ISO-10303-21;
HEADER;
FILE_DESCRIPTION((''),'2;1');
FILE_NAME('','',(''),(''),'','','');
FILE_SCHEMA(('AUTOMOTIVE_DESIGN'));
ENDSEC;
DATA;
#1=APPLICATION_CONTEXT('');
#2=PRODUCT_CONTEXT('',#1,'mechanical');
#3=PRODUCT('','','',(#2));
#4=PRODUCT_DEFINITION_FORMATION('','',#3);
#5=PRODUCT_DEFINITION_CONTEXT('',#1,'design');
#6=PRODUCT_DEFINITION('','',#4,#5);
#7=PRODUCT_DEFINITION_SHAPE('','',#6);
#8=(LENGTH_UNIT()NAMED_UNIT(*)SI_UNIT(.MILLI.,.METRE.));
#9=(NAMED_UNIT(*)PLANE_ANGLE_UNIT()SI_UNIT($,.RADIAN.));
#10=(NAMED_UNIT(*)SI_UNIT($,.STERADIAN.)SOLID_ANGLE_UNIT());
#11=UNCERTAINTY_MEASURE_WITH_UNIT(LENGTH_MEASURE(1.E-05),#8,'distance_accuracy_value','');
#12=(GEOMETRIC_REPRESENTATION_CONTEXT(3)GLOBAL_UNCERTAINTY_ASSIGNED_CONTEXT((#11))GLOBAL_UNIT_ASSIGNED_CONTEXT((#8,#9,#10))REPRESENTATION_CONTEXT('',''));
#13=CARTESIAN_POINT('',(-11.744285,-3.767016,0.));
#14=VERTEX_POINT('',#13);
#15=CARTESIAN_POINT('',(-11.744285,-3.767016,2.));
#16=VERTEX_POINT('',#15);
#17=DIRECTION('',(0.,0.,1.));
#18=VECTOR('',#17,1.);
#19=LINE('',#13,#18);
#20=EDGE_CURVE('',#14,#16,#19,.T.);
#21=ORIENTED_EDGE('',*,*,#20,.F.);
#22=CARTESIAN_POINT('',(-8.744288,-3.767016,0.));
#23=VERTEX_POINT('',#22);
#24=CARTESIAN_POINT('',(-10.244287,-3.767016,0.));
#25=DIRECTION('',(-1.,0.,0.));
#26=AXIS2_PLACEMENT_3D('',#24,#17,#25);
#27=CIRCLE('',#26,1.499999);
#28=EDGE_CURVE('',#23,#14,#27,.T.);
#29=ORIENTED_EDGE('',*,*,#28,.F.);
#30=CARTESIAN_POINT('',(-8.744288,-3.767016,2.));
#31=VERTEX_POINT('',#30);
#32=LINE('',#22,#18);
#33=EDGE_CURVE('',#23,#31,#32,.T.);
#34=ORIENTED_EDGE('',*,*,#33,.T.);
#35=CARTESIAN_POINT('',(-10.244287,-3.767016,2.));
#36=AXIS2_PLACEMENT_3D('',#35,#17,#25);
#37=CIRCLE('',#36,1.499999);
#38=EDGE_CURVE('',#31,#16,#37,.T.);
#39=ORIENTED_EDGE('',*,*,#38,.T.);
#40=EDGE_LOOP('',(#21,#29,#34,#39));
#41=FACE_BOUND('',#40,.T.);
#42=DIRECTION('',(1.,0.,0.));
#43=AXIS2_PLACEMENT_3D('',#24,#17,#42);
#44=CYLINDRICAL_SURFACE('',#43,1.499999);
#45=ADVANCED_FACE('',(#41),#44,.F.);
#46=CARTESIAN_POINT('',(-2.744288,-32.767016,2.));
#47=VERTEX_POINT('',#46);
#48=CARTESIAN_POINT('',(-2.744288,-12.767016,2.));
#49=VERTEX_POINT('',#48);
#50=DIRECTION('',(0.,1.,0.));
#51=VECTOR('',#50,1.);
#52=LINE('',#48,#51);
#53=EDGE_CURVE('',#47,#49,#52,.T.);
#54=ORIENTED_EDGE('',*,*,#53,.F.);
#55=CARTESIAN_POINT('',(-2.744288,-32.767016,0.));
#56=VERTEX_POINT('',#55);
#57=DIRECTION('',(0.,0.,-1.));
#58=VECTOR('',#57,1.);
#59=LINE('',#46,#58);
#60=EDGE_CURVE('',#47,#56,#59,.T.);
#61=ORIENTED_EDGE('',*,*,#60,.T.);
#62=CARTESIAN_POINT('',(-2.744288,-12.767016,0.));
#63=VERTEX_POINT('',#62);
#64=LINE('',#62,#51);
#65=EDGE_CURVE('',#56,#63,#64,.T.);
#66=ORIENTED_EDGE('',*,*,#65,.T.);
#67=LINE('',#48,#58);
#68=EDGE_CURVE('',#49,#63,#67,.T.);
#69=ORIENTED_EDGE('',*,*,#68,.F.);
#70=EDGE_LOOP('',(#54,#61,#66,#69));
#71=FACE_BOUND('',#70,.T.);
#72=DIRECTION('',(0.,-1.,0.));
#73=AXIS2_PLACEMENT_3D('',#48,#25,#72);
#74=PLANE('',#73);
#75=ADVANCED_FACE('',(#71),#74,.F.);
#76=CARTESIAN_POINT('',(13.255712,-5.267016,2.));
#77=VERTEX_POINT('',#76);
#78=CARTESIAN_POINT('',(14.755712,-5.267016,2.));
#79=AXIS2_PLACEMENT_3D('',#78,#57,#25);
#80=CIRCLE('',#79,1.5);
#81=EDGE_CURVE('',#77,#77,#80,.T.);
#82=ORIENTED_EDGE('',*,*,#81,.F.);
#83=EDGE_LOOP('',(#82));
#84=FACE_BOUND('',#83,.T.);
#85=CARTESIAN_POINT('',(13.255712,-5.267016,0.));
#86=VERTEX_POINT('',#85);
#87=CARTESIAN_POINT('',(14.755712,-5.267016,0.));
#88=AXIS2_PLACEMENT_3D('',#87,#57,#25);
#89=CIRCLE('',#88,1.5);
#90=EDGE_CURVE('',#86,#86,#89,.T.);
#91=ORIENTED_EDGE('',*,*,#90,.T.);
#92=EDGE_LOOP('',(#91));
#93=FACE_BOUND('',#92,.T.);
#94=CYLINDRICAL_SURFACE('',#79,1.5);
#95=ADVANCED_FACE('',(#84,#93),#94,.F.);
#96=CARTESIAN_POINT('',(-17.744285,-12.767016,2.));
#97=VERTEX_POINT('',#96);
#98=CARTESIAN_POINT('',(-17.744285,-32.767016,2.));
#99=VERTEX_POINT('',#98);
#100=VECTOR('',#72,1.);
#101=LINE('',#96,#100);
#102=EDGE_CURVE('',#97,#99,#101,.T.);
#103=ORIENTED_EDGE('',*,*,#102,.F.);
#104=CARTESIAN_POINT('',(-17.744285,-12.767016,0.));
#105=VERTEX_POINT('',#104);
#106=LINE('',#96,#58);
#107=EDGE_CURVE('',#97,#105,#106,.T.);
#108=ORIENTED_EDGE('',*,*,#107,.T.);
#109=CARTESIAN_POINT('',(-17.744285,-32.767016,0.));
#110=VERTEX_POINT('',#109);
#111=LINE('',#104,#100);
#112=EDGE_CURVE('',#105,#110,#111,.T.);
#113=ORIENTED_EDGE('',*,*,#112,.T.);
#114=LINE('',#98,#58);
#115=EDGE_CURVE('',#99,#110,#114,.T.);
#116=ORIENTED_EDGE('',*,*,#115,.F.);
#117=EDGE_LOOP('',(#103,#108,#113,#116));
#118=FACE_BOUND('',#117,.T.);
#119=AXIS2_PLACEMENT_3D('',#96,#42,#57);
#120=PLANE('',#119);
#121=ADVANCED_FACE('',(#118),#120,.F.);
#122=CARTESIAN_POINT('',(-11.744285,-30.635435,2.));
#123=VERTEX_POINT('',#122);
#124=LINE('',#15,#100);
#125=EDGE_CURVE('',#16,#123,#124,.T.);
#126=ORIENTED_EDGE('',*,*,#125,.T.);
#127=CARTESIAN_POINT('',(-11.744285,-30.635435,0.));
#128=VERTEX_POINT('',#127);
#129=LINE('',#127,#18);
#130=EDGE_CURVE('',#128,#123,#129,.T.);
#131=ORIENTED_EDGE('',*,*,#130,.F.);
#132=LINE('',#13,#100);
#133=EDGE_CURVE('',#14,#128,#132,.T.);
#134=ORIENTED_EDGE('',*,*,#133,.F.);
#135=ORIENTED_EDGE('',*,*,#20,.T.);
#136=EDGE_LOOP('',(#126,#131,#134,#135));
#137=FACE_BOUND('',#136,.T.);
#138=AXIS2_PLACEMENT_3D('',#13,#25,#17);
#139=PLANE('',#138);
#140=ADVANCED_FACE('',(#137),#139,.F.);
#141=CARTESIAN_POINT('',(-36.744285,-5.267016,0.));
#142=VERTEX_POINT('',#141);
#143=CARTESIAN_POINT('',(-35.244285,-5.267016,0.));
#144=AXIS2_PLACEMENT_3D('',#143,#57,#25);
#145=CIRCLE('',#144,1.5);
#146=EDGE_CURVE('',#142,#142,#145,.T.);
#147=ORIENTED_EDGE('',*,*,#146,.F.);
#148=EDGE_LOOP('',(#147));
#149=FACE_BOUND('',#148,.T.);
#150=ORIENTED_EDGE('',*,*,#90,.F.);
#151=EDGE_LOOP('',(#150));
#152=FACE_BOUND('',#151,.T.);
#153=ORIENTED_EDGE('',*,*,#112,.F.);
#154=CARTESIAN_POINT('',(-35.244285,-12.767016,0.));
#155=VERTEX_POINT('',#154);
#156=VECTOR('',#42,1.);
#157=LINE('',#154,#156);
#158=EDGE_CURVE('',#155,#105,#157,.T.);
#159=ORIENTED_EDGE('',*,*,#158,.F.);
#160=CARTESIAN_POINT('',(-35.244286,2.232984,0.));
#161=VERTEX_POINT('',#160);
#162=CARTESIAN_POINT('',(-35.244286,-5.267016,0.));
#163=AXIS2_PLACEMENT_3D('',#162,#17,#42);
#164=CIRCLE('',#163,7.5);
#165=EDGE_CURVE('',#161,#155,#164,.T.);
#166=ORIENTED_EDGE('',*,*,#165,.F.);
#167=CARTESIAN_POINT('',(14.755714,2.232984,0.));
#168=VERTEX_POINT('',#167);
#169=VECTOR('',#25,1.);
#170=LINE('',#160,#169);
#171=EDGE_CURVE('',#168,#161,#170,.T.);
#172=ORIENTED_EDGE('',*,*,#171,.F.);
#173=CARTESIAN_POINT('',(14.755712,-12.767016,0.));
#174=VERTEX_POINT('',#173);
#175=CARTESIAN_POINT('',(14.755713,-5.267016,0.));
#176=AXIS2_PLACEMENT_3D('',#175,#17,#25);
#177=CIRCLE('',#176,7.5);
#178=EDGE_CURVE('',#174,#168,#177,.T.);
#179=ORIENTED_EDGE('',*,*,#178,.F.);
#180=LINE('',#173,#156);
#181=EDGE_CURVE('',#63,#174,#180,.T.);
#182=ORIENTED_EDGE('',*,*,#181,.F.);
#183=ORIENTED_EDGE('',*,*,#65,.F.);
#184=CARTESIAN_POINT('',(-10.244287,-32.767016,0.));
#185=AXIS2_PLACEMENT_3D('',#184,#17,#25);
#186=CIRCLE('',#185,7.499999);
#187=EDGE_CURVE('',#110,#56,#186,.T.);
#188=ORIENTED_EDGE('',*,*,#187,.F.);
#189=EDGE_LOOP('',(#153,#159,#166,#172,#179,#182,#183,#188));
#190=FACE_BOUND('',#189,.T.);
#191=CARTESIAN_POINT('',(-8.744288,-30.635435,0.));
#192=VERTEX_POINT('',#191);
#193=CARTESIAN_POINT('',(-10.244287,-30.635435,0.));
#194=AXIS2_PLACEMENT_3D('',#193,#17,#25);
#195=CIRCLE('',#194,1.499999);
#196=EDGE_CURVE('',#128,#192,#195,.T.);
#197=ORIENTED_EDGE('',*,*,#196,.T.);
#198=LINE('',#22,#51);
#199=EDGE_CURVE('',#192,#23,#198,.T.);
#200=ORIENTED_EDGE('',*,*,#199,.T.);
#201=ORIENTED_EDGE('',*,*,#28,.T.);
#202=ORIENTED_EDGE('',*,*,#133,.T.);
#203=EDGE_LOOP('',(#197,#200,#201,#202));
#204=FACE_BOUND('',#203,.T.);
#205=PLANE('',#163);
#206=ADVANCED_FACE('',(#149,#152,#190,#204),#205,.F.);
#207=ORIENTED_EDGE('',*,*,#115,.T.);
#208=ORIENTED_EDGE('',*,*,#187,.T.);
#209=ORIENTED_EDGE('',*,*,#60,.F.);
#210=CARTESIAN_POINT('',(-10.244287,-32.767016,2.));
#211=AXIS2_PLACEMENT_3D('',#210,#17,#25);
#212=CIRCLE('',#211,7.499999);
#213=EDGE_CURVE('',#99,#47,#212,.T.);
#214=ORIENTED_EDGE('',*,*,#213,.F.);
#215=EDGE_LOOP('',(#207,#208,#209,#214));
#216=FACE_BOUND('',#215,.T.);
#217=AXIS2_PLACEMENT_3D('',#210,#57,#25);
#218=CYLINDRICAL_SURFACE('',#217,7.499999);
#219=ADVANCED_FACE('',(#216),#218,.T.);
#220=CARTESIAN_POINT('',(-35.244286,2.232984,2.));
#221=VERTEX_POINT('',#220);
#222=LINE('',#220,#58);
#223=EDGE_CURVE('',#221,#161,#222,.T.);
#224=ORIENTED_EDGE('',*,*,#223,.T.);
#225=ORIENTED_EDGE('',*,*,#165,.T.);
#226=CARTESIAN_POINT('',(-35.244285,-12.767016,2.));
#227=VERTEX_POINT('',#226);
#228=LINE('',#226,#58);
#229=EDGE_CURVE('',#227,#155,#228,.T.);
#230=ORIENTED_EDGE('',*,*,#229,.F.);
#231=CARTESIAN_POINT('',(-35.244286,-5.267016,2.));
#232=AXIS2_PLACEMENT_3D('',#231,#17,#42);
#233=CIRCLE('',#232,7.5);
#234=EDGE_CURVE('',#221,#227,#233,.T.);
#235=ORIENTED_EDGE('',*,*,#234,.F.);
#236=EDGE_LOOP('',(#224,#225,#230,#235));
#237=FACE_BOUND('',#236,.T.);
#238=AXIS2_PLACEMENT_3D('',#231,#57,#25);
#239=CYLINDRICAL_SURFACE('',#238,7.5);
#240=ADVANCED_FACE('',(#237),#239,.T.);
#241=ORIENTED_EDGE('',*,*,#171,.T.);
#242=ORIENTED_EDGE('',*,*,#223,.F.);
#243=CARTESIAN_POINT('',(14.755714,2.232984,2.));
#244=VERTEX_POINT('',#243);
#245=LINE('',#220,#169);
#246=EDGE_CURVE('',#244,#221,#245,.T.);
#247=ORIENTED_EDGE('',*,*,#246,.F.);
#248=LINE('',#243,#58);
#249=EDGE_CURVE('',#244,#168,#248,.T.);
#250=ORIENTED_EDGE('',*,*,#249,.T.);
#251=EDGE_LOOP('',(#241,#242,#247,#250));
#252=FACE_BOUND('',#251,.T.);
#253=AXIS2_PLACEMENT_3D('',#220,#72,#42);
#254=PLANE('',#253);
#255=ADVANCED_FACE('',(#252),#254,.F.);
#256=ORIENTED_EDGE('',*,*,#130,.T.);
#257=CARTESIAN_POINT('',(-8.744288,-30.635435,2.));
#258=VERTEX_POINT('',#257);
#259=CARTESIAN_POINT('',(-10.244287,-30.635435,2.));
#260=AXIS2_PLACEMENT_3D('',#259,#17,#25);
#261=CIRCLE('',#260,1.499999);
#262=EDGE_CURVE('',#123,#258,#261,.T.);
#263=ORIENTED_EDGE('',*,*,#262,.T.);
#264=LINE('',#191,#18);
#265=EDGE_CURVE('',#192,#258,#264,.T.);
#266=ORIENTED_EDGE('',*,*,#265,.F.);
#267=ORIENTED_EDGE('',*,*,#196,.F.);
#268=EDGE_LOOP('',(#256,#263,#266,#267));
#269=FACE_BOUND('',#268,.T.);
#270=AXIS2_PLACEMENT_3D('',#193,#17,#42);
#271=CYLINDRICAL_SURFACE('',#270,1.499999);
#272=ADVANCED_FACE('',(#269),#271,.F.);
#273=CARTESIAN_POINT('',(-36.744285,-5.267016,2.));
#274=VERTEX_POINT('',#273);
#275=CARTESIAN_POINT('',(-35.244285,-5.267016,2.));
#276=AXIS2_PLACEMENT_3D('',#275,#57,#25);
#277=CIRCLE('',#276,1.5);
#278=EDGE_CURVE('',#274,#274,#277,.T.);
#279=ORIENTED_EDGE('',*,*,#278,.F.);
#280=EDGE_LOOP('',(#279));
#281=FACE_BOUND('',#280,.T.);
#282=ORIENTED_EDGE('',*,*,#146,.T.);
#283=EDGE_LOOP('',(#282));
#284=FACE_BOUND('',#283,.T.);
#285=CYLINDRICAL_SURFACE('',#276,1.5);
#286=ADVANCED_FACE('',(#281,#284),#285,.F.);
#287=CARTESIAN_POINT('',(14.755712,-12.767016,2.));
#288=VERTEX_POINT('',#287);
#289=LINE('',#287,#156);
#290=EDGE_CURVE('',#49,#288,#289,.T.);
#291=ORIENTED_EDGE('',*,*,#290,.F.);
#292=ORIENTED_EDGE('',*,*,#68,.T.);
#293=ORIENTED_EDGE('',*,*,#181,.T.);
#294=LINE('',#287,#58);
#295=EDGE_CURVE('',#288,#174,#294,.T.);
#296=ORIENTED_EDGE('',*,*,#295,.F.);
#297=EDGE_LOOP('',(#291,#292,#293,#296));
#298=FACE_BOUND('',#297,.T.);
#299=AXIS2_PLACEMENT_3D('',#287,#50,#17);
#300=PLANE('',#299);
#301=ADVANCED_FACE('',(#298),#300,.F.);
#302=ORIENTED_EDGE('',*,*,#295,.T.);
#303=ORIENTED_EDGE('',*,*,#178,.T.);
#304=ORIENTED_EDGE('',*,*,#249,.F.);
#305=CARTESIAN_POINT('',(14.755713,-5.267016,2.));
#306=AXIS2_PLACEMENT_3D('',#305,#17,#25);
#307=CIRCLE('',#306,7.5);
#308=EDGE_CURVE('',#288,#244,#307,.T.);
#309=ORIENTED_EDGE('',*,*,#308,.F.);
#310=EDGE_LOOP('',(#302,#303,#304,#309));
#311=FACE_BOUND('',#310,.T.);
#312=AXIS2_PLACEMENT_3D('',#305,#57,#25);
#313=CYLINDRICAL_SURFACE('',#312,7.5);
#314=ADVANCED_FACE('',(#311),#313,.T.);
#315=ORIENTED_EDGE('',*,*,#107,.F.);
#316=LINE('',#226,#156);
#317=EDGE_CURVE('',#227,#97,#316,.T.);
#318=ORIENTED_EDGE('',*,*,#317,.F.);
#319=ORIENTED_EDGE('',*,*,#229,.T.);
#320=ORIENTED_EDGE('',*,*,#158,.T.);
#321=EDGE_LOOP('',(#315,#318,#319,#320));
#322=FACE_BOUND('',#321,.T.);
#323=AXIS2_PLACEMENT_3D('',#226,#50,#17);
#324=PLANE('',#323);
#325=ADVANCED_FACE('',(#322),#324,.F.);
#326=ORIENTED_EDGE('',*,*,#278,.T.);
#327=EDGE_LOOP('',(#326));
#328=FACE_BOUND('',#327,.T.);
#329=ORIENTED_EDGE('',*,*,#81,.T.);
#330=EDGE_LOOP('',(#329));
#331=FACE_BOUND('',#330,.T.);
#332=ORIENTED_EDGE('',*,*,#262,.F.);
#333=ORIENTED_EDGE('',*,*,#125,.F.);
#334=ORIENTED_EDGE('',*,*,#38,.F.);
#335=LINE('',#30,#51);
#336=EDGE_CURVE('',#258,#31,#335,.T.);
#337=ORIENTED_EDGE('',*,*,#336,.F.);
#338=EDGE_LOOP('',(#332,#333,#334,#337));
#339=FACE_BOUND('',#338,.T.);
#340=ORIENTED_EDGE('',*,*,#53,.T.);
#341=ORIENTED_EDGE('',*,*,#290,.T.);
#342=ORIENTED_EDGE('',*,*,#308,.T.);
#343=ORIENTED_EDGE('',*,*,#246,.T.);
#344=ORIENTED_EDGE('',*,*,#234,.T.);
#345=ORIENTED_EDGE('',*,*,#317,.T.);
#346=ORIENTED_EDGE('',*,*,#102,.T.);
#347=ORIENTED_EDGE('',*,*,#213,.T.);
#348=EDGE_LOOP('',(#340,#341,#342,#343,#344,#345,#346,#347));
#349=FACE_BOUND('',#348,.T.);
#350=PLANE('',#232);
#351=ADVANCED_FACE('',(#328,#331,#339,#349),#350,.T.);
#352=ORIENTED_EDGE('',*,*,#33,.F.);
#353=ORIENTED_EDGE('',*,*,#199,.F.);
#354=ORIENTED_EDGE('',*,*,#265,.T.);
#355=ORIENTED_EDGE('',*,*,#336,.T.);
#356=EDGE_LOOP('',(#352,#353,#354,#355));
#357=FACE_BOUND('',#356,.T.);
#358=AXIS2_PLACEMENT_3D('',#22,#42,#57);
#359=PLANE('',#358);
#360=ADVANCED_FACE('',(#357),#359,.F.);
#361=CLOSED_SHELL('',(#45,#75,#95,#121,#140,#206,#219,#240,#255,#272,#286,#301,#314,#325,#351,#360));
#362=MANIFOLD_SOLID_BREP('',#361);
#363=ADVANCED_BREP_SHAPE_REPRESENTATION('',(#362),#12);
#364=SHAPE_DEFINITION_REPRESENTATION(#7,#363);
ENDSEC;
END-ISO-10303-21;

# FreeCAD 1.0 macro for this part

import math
import FreeCAD as App
import Part
import Sketcher

doc = App.newDocument("Part")
body = doc.addObject("PartDesign::Body", "Body")

sketch1 = doc.addObject("Sketcher::SketchObject", "Sketch")
body.addObject(sketch1)
sketch1.AttachmentSupport = (doc.XY_Plane, [""])
sketch1.MapMode = "FlatFace"
sketch1.addGeometry([
    Part.LineSegment(App.Vector(14.755714, 2.232984, 0), App.Vector(-35.244286, 2.232984, 0)),
    Part.ArcOfCircle(Part.Circle(App.Vector(-35.244286, -5.267016, 0), App.Vector(0, 0, 1), 7.5), math.radians(90), math.radians(270.000005)),
    Part.LineSegment(App.Vector(-35.244285, -12.767016, 0), App.Vector(-17.744285, -12.767016, 0)),
    Part.LineSegment(App.Vector(-17.744285, -12.767016, 0), App.Vector(-17.744285, -32.767016, 0)),
    Part.ArcOfCircle(Part.Circle(App.Vector(-10.244287, -32.767016, 0), App.Vector(0, 0, 1), 7.499999), math.radians(-180), math.radians(0)),
    Part.LineSegment(App.Vector(-2.744288, -32.767016, 0), App.Vector(-2.744288, -12.767016, 0)),
    Part.LineSegment(App.Vector(-2.744288, -12.767016, 0), App.Vector(14.755712, -12.767016, 0)),
    Part.ArcOfCircle(Part.Circle(App.Vector(14.755713, -5.267016, 0), App.Vector(0, 0, 1), 7.5), math.radians(-90.000006), math.radians(89.999994)),
], False)
sketch1.addConstraint([
    Sketcher.Constraint("Tangent", 0, 2, 1, 1),
    Sketcher.Constraint("Tangent", 1, 2, 2, 1),
    Sketcher.Constraint("Coincident", 2, 2, 3, 1),
    Sketcher.Constraint("Tangent", 3, 2, 4, 1),
    Sketcher.Constraint("Tangent", 4, 2, 5, 1),
    Sketcher.Constraint("Coincident", 5, 2, 6, 1),
    Sketcher.Constraint("Tangent", 6, 2, 7, 1),
    Sketcher.Constraint("Tangent", 7, 2, 0, 1),
    Sketcher.Constraint("Horizontal", 0),
    Sketcher.Constraint("Horizontal", 2),
    Sketcher.Constraint("Vertical", 3),
    Sketcher.Constraint("Vertical", 5),
    Sketcher.Constraint("Horizontal", 6),
    Sketcher.Constraint("Equal", 1, 4),
    Sketcher.Constraint("Equal", 4, 7),
    Sketcher.Constraint("Equal", 2, 6),
    Sketcher.Constraint("Radius", 1, 7.5),
    Sketcher.Constraint("DistanceX", 0, 2, 0, 1, 50.0),
    Sketcher.Constraint("DistanceY", 3, 2, 3, 1, 20.0),
    Sketcher.Constraint("DistanceX", 1, 3, -1, 1, 35.244286),
    Sketcher.Constraint("DistanceY", 1, 3, -1, 1, 5.267016),
])
pad1 = doc.addObject("PartDesign::Pad", "Pad")
body.addObject(pad1)
pad1.Profile = sketch1
pad1.Length = 2

sketch2 = doc.addObject("Sketcher::SketchObject", "Sketch001")
body.addObject(sketch2)
sketch2.AttachmentSupport = (doc.XY_Plane, [""])
sketch2.MapMode = "FlatFace"
sketch2.AttachmentOffset = App.Placement(App.Vector(0, 0, 2), App.Rotation())
sketch2.addGeometry([
    Part.LineSegment(App.Vector(-11.744285, -3.767016, 0), App.Vector(-11.744285, -30.635435, 0)),
    Part.ArcOfCircle(Part.Circle(App.Vector(-10.244287, -30.635435, 0), App.Vector(0, 0, 1), 1.499999), math.radians(180), math.radians(360)),
    Part.LineSegment(App.Vector(-8.744288, -30.635435, 0), App.Vector(-8.744288, -3.767016, 0)),
    Part.ArcOfCircle(Part.Circle(App.Vector(-10.244287, -3.767016, 0), App.Vector(0, 0, 1), 1.499999), math.radians(0), math.radians(180)),
], False)
sketch2.addConstraint([
    Sketcher.Constraint("Tangent", 0, 2, 1, 1),
    Sketcher.Constraint("Tangent", 1, 2, 2, 1),
    Sketcher.Constraint("Tangent", 2, 2, 3, 1),
    Sketcher.Constraint("Tangent", 3, 2, 0, 1),
    Sketcher.Constraint("Vertical", 0),
    Sketcher.Constraint("Vertical", 2),
    Sketcher.Constraint("Radius", 1, 1.499999),
    Sketcher.Constraint("DistanceY", 0, 2, 0, 1, 26.868419),
    Sketcher.Constraint("DistanceX", 1, 3, -1, 1, 10.244287),
    Sketcher.Constraint("DistanceY", 1, 3, -1, 1, 30.635435),
])
pocket1 = doc.addObject("PartDesign::Pocket", "Pocket")
body.addObject(pocket1)
pocket1.Profile = sketch2
pocket1.Type = "ThroughAll"

sketch3 = doc.addObject("Sketcher::SketchObject", "Sketch002")
body.addObject(sketch3)
sketch3.AttachmentSupport = (doc.XY_Plane, [""])
sketch3.MapMode = "FlatFace"
sketch3.addGeometry([
    Part.Circle(App.Vector(14.755712, -5.267016, 0), App.Vector(0, 0, 1), 1.5),
    Part.Circle(App.Vector(-35.244285, -5.267016, 0), App.Vector(0, 0, 1), 1.5),
], False)
sketch3.addConstraint([
    Sketcher.Constraint("Equal", 0, 1),
    Sketcher.Constraint("Horizontal", 0, 3, 1, 3),
    Sketcher.Constraint("Diameter", 0, 3.0),
    Sketcher.Constraint("DistanceX", -1, 1, 0, 3, 14.755712),
    Sketcher.Constraint("DistanceY", 0, 3, -1, 1, 5.267016),
    Sketcher.Constraint("DistanceX", 1, 3, -1, 1, 35.244285),
])
pocket2 = doc.addObject("PartDesign::Pocket", "Pocket001")
body.addObject(pocket2)
pocket2.Profile = sketch3
pocket2.Type = "ThroughAll"
pocket2.Reversed = True

doc.recompute()
